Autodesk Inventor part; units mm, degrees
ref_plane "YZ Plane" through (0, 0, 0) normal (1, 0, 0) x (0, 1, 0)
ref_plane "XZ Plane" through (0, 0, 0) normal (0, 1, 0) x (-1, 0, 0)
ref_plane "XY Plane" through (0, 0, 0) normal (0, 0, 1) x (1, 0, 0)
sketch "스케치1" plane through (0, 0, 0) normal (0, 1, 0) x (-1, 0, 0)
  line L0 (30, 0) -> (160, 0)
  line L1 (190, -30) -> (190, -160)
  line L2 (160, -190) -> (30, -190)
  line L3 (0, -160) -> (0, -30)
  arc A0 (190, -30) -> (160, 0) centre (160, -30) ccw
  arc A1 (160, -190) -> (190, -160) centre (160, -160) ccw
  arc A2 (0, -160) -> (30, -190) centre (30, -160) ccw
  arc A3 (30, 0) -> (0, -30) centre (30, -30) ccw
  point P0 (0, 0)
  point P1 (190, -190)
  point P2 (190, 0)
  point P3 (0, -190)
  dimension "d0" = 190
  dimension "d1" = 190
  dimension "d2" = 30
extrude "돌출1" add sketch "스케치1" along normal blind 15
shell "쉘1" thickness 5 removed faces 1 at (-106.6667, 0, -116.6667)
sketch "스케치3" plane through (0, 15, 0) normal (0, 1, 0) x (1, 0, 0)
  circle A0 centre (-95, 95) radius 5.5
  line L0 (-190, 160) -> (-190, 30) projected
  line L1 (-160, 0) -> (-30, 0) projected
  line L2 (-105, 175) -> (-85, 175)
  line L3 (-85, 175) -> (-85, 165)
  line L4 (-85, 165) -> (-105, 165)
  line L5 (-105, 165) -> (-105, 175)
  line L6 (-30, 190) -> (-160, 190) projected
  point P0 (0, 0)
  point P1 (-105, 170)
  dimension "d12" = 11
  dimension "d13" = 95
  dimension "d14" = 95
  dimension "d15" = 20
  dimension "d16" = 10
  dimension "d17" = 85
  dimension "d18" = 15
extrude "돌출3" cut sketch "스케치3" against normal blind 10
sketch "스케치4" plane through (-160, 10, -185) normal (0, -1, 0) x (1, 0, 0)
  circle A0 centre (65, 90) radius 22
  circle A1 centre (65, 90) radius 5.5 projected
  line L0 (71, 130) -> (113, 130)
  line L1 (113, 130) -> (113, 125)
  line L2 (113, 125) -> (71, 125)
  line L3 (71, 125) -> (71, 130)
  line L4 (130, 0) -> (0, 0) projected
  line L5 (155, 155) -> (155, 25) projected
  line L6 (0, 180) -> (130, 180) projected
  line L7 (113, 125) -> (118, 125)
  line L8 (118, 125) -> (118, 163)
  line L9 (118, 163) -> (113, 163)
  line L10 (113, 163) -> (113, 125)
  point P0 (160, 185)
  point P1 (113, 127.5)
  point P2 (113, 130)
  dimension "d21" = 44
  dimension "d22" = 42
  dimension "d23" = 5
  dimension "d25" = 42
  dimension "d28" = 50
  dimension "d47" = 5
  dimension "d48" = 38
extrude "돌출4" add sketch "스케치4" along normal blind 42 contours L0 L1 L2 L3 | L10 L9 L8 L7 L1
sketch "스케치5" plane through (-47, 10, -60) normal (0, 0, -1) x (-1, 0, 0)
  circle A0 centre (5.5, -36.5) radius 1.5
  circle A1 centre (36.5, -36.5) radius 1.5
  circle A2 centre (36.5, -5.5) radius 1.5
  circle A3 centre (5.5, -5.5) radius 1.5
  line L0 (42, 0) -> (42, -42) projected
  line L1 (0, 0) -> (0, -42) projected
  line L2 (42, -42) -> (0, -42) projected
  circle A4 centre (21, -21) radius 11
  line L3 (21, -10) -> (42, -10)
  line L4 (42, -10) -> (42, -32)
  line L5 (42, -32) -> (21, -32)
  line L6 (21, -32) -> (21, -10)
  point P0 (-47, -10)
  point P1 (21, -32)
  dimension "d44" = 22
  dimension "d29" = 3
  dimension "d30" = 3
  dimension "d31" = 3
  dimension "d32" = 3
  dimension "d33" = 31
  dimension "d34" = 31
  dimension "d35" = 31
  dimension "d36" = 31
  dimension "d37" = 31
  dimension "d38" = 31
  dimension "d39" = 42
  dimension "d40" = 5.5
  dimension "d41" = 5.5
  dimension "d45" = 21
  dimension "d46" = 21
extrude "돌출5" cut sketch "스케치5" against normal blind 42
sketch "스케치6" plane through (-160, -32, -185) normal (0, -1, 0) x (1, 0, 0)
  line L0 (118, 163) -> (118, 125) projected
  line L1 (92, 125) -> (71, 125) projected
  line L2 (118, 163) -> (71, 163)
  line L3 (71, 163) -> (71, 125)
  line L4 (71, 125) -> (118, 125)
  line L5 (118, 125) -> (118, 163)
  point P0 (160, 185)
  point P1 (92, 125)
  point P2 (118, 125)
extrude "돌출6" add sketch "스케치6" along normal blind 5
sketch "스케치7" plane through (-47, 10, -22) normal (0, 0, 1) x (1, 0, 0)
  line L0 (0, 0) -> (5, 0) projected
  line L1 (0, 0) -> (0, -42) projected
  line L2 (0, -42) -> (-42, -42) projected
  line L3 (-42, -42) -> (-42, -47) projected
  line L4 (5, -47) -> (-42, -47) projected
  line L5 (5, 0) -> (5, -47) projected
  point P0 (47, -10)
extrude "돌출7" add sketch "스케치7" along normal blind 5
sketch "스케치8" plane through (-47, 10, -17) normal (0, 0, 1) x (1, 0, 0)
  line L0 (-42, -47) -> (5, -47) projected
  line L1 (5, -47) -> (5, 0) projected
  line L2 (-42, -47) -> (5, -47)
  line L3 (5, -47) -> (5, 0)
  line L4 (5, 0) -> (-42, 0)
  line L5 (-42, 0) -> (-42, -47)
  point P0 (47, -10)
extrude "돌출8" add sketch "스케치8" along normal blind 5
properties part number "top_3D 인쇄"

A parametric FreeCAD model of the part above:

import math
import FreeCAD as App
import Part
import Sketcher

V = App.Vector
Q = App.Units.Quantity


def faces_at(feature, points):
    """Names of the faces that lie closest to the given points."""
    faces = feature.Shape.Faces
    near = lambda p: min(range(len(faces)), key=lambda i: faces[i].distToShape(Part.Vertex(*p))[0])
    return sorted({f"Face{near(p) + 1}" for p in points})

doc = App.newDocument("Part")
body = doc.addObject("PartDesign::Body", "Body")

# Sketch on XZ plane
sketch1 = doc.addObject("Sketcher::SketchObject", "Sketch")
body.addObject(sketch1)
sketch1.AttachmentSupport = (doc.XZ_Plane, [""])
sketch1.MapMode = "FlatFace"
sketch1.addGeometry(Part.LineSegment(V(-160, 0, 0), V(-30, 0, 0)), False)
sketch1.addGeometry(Part.ArcOfCircle(Part.Circle(V(-30, -30, 0), V(0, 0, 1), 30), math.radians(0), math.radians(90)), False)
sketch1.addGeometry(Part.LineSegment(V(0, -30, 0), V(0, -160, 0)), False)
sketch1.addGeometry(Part.ArcOfCircle(Part.Circle(V(-30, -160, 0), V(0, 0, 1), 30), math.radians(-90), math.radians(0)), False)
sketch1.addGeometry(Part.LineSegment(V(-30, -190, 0), V(-160, -190, 0)), False)
sketch1.addGeometry(Part.ArcOfCircle(Part.Circle(V(-160, -160, 0), V(0, 0, 1), 30), math.radians(180), math.radians(270)), False)
sketch1.addGeometry(Part.LineSegment(V(-190, -160, 0), V(-190, -30, 0)), False)
sketch1.addGeometry(Part.ArcOfCircle(Part.Circle(V(-160, -30, 0), V(0, 0, 1), 30), math.radians(90), math.radians(180)), False)
sketch1.addConstraint(Sketcher.Constraint("Tangent", 0, 2, 1, 2))
sketch1.addConstraint(Sketcher.Constraint("Tangent", 1, 1, 2, 1))
sketch1.addConstraint(Sketcher.Constraint("Tangent", 2, 2, 3, 2))
sketch1.addConstraint(Sketcher.Constraint("Tangent", 3, 1, 4, 1))
sketch1.addConstraint(Sketcher.Constraint("Tangent", 4, 2, 5, 2))
sketch1.addConstraint(Sketcher.Constraint("Tangent", 5, 1, 6, 1))
sketch1.addConstraint(Sketcher.Constraint("Tangent", 6, 2, 7, 2))
sketch1.addConstraint(Sketcher.Constraint("Tangent", 7, 1, 0, 1))
sketch1.addConstraint(Sketcher.Constraint("Horizontal", 0))
sketch1.addConstraint(Sketcher.Constraint("Vertical", 2))
sketch1.addConstraint(Sketcher.Constraint("Horizontal", 4))
sketch1.addConstraint(Sketcher.Constraint("Vertical", 6))
sketch1.addConstraint(Sketcher.Constraint("Equal", 1, 3))
sketch1.addConstraint(Sketcher.Constraint("Equal", 3, 5))
sketch1.addConstraint(Sketcher.Constraint("Equal", 5, 7))
sketch1.addConstraint(Sketcher.Constraint("PointOnObject", 0, 2, -1))
sketch1.addConstraint(Sketcher.Constraint("PointOnObject", 1, 1, -2))
sketch1.addConstraint(Sketcher.Constraint("Equal", 4, 2))
sketch1.addConstraint(Sketcher.Constraint("Radius", 1, Q("30 mm")))
sketch1.addConstraint(Sketcher.Constraint("DistanceY", 3, 1, -1, 1, Q("190 mm")))
pad1 = doc.addObject("PartDesign::Pad", "Pad")
body.addObject(pad1)
pad1.Profile = sketch1
pad1.Length = 15
pad1.Reversed = True
doc.recompute()

thickness = doc.addObject("PartDesign::Thickness", "Thickness")
body.addObject(thickness)
thickness.Base = (pad1, faces_at(pad1, [(-106.667, 0, -116.667)]))
thickness.Value = 5
thickness.Reversed = True
thickness.Join = "Intersection"

# Sketch on XZ plane
sketch2 = doc.addObject("Sketcher::SketchObject", "Sketch001")
body.addObject(sketch2)
sketch2.AttachmentSupport = (doc.XZ_Plane, [""])
sketch2.MapMode = "FlatFace"
sketch2.AttachmentOffset = App.Placement(V(0, 0, -15), App.Rotation())
sketch2.addGeometry(Part.Circle(V(-95, -95, 0), V(0, 0, 1), 5.5), False)
sketch2.addGeometry(Part.LineSegment(V(-85, -175, 0), V(-105, -175, 0)), False)
sketch2.addGeometry(Part.LineSegment(V(-105, -175, 0), V(-105, -165, 0)), False)
sketch2.addGeometry(Part.LineSegment(V(-105, -165, 0), V(-85, -165, 0)), False)
sketch2.addGeometry(Part.LineSegment(V(-85, -165, 0), V(-85, -175, 0)), False)
sketch2.addConstraint(Sketcher.Constraint("Coincident", 1, 2, 2, 1))
sketch2.addConstraint(Sketcher.Constraint("Coincident", 2, 2, 3, 1))
sketch2.addConstraint(Sketcher.Constraint("Coincident", 3, 2, 4, 1))
sketch2.addConstraint(Sketcher.Constraint("Coincident", 4, 2, 1, 1))
sketch2.addConstraint(Sketcher.Constraint("Horizontal", 1))
sketch2.addConstraint(Sketcher.Constraint("Vertical", 2))
sketch2.addConstraint(Sketcher.Constraint("Horizontal", 3))
sketch2.addConstraint(Sketcher.Constraint("Vertical", 4))
sketch2.addConstraint(Sketcher.Constraint("Diameter", 0, Q("11 mm")))
sketch2.addConstraint(Sketcher.Constraint("DistanceX", 1, 2, 1, 1, Q("20 mm")))
sketch2.addConstraint(Sketcher.Constraint("DistanceY", 2, 1, 2, 2, Q("10 mm")))
sketch2.addConstraint(Sketcher.Constraint("DistanceX", 0, 3, -1, 1, Q("95 mm")))
sketch2.addConstraint(Sketcher.Constraint("DistanceY", 0, 3, -1, 1, Q("95 mm")))
sketch2.addConstraint(Sketcher.Constraint("DistanceX", 3, 2, -1, 1, Q("85 mm")))
sketch2.addConstraint(Sketcher.Constraint("DistanceY", 1, 2, -1, 1, Q("175 mm")))
pocket1 = doc.addObject("PartDesign::Pocket", "Pocket")
body.addObject(pocket1)
pocket1.Profile = sketch2
pocket1.Length = 10
pocket1.Reversed = True

# Sketch on XZ plane
sketch3 = doc.addObject("Sketcher::SketchObject", "Sketch002")
body.addObject(sketch3)
sketch3.AttachmentSupport = (doc.XZ_Plane, [""])
sketch3.MapMode = "FlatFace"
sketch3.AttachmentOffset = App.Placement(V(0, 0, -10), App.Rotation())
sketch3.addGeometry(Part.LineSegment(V(-47, -55, 0), V(-89, -55, 0)), False)
sketch3.addGeometry(Part.LineSegment(V(-89, -55, 0), V(-89, -60, 0)), False)
sketch3.addGeometry(Part.LineSegment(V(-89, -60, 0), V(-42, -60, 0)), False)
sketch3.addGeometry(Part.LineSegment(V(-42, -60, 0), V(-42, -22, 0)), False)
sketch3.addGeometry(Part.LineSegment(V(-42, -22, 0), V(-47, -22, 0)), False)
sketch3.addGeometry(Part.LineSegment(V(-47, -22, 0), V(-47, -55, 0)), False)
sketch3.addConstraint(Sketcher.Constraint("Coincident", 0, 2, 1, 1))
sketch3.addConstraint(Sketcher.Constraint("Coincident", 1, 2, 2, 1))
sketch3.addConstraint(Sketcher.Constraint("Coincident", 2, 2, 3, 1))
sketch3.addConstraint(Sketcher.Constraint("Coincident", 3, 2, 4, 1))
sketch3.addConstraint(Sketcher.Constraint("Coincident", 4, 2, 5, 1))
sketch3.addConstraint(Sketcher.Constraint("Coincident", 5, 2, 0, 1))
sketch3.addConstraint(Sketcher.Constraint("Horizontal", 0))
sketch3.addConstraint(Sketcher.Constraint("Vertical", 1))
sketch3.addConstraint(Sketcher.Constraint("Horizontal", 2))
sketch3.addConstraint(Sketcher.Constraint("Vertical", 3))
sketch3.addConstraint(Sketcher.Constraint("Horizontal", 4))
sketch3.addConstraint(Sketcher.Constraint("Vertical", 5))
sketch3.addConstraint(Sketcher.Constraint("Equal", 4, 1))
sketch3.addConstraint(Sketcher.Constraint("DistanceX", 0, 2, 0, 1, Q("42 mm")))
sketch3.addConstraint(Sketcher.Constraint("DistanceX", 4, 2, 4, 1, Q("5 mm")))
sketch3.addConstraint(Sketcher.Constraint("DistanceY", 3, 1, 3, 2, Q("38 mm")))
sketch3.addConstraint(Sketcher.Constraint("DistanceX", 2, 2, -1, 1, Q("42 mm")))
sketch3.addConstraint(Sketcher.Constraint("DistanceY", 0, 2, -1, 1, Q("55 mm")))
pad2 = doc.addObject("PartDesign::Pad", "Pad001")
body.addObject(pad2)
pad2.Profile = sketch3
pad2.Length = 42

# Sketch on XY plane
sketch4 = doc.addObject("Sketcher::SketchObject", "Sketch003")
body.addObject(sketch4)
sketch4.AttachmentSupport = (doc.XY_Plane, [""])
sketch4.MapMode = "FlatFace"
sketch4.AttachmentOffset = App.Placement(V(0, 0, -60), App.Rotation())
sketch4.addGeometry(Part.Circle(V(-52.5, -26.5, 0), V(0, 0, 1), 1.5), False)
sketch4.addGeometry(Part.Circle(V(-83.5, -26.5, 0), V(0, 0, 1), 1.5), False)
sketch4.addGeometry(Part.Circle(V(-83.5, 4.5, 0), V(0, 0, 1), 1.5), False)
sketch4.addGeometry(Part.Circle(V(-52.5, 4.5, 0), V(0, 0, 1), 1.5), False)
sketch4.addGeometry(Part.LineSegment(V(-89, -22, 0), V(-89, 0, 0)), False)
sketch4.addGeometry(Part.LineSegment(V(-89, 0, 0), V(-68, 0, 0)), False)
sketch4.addGeometry(Part.ArcOfCircle(Part.Circle(V(-68, -11, 0), V(0, 0, 1), 11), math.radians(-90), math.radians(90)), False)
sketch4.addGeometry(Part.LineSegment(V(-68, -22, 0), V(-89, -22, 0)), False)
sketch4.addConstraint(Sketcher.Constraint("Coincident", 4, 2, 5, 1))
sketch4.addConstraint(Sketcher.Constraint("Tangent", 5, 2, 6, 2))
sketch4.addConstraint(Sketcher.Constraint("Tangent", 6, 1, 7, 1))
sketch4.addConstraint(Sketcher.Constraint("Coincident", 7, 2, 4, 1))
sketch4.addConstraint(Sketcher.Constraint("Vertical", 4))
sketch4.addConstraint(Sketcher.Constraint("Horizontal", 5))
sketch4.addConstraint(Sketcher.Constraint("Horizontal", 7))
sketch4.addConstraint(Sketcher.Constraint("Equal", 0, 1))
sketch4.addConstraint(Sketcher.Constraint("Equal", 1, 2))
sketch4.addConstraint(Sketcher.Constraint("Equal", 2, 3))
sketch4.addConstraint(Sketcher.Constraint("PointOnObject", 4, 2, -1))
sketch4.addConstraint(Sketcher.Constraint("Horizontal", 0, 3, 1, 3))
sketch4.addConstraint(Sketcher.Constraint("Horizontal", 2, 3, 3, 3))
sketch4.addConstraint(Sketcher.Constraint("Vertical", 1, 3, 2, 3))
sketch4.addConstraint(Sketcher.Constraint("Vertical", 0, 3, 3, 3))
sketch4.addConstraint(Sketcher.Constraint("Diameter", 0, Q("3 mm")))
sketch4.addConstraint(Sketcher.Constraint("Radius", 6, Q("11 mm")))
sketch4.addConstraint(Sketcher.Constraint("DistanceX", 5, 1, 5, 2, Q("21 mm")))
sketch4.addConstraint(Sketcher.Constraint("DistanceX", 1, 3, 0, 3, Q("31 mm")))
sketch4.addConstraint(Sketcher.Constraint("DistanceY", 1, 3, 2, 3, Q("31 mm")))
sketch4.addConstraint(Sketcher.Constraint("DistanceX", 4, 2, 2, 3, Q("5.5 mm")))
sketch4.addConstraint(Sketcher.Constraint("DistanceX", 6, 3, -1, 1, Q("68 mm")))
sketch4.addConstraint(Sketcher.Constraint("DistanceY", 0, 3, -1, 1, Q("26.5 mm")))
pocket2 = doc.addObject("PartDesign::Pocket", "Pocket001")
body.addObject(pocket2)
pocket2.Profile = sketch4
pocket2.Length = 42
pocket2.Reversed = True

# Sketch on XZ plane
sketch5 = doc.addObject("Sketcher::SketchObject", "Sketch004")
body.addObject(sketch5)
sketch5.AttachmentSupport = (doc.XZ_Plane, [""])
sketch5.MapMode = "FlatFace"
sketch5.AttachmentOffset = App.Placement(V(0, 0, 32), App.Rotation())
sketch5.addGeometry(Part.LineSegment(V(-42, -60, 0), V(-42, -22, 0)), False)
sketch5.addGeometry(Part.LineSegment(V(-42, -22, 0), V(-89, -22, 0)), False)
sketch5.addGeometry(Part.LineSegment(V(-89, -22, 0), V(-89, -60, 0)), False)
sketch5.addGeometry(Part.LineSegment(V(-89, -60, 0), V(-42, -60, 0)), False)
sketch5.addConstraint(Sketcher.Constraint("Coincident", 0, 2, 1, 1))
sketch5.addConstraint(Sketcher.Constraint("Coincident", 1, 2, 2, 1))
sketch5.addConstraint(Sketcher.Constraint("Coincident", 2, 2, 3, 1))
sketch5.addConstraint(Sketcher.Constraint("Coincident", 3, 2, 0, 1))
sketch5.addConstraint(Sketcher.Constraint("Vertical", 0))
sketch5.addConstraint(Sketcher.Constraint("Horizontal", 1))
sketch5.addConstraint(Sketcher.Constraint("Vertical", 2))
sketch5.addConstraint(Sketcher.Constraint("Horizontal", 3))
sketch5.addConstraint(Sketcher.Constraint("DistanceX", 1, 2, 1, 1, Q("47 mm")))
sketch5.addConstraint(Sketcher.Constraint("DistanceY", 0, 1, 0, 2, Q("38 mm")))
sketch5.addConstraint(Sketcher.Constraint("DistanceX", 0, 2, -1, 1, Q("42 mm")))
sketch5.addConstraint(Sketcher.Constraint("DistanceY", 0, 2, -1, 1, Q("22 mm")))
pad3 = doc.addObject("PartDesign::Pad", "Pad002")
body.addObject(pad3)
pad3.Profile = sketch5
pad3.Length = 5

# Sketch on XY plane
sketch6 = doc.addObject("Sketcher::SketchObject", "Sketch005")
body.addObject(sketch6)
sketch6.AttachmentSupport = (doc.XY_Plane, [""])
sketch6.MapMode = "FlatFace"
sketch6.AttachmentOffset = App.Placement(V(0, 0, -22), App.Rotation())
sketch6.addGeometry(Part.LineSegment(V(-42, 10, 0), V(-47, 10, 0)), False)
sketch6.addGeometry(Part.LineSegment(V(-47, 10, 0), V(-47, -32, 0)), False)
sketch6.addGeometry(Part.LineSegment(V(-47, -32, 0), V(-89, -32, 0)), False)
sketch6.addGeometry(Part.LineSegment(V(-89, -32, 0), V(-89, -37, 0)), False)
sketch6.addGeometry(Part.LineSegment(V(-89, -37, 0), V(-42, -37, 0)), False)
sketch6.addGeometry(Part.LineSegment(V(-42, -37, 0), V(-42, 10, 0)), False)
sketch6.addConstraint(Sketcher.Constraint("Coincident", 0, 2, 1, 1))
sketch6.addConstraint(Sketcher.Constraint("Coincident", 1, 2, 2, 1))
sketch6.addConstraint(Sketcher.Constraint("Coincident", 2, 2, 3, 1))
sketch6.addConstraint(Sketcher.Constraint("Coincident", 3, 2, 4, 1))
sketch6.addConstraint(Sketcher.Constraint("Coincident", 4, 2, 5, 1))
sketch6.addConstraint(Sketcher.Constraint("Coincident", 5, 2, 0, 1))
sketch6.addConstraint(Sketcher.Constraint("Horizontal", 0))
sketch6.addConstraint(Sketcher.Constraint("Vertical", 1))
sketch6.addConstraint(Sketcher.Constraint("Horizontal", 2))
sketch6.addConstraint(Sketcher.Constraint("Vertical", 3))
sketch6.addConstraint(Sketcher.Constraint("Horizontal", 4))
sketch6.addConstraint(Sketcher.Constraint("Vertical", 5))
sketch6.addConstraint(Sketcher.Constraint("Equal", 2, 1))
sketch6.addConstraint(Sketcher.Constraint("Equal", 0, 3))
sketch6.addConstraint(Sketcher.Constraint("DistanceX", 0, 2, 0, 1, Q("5 mm")))
sketch6.addConstraint(Sketcher.Constraint("DistanceX", 2, 2, 2, 1, Q("42 mm")))
sketch6.addConstraint(Sketcher.Constraint("DistanceX", 0, 2, -1, 1, Q("47 mm")))
sketch6.addConstraint(Sketcher.Constraint("DistanceY", -1, 1, 0, 2, Q("10 mm")))
pad4 = doc.addObject("PartDesign::Pad", "Pad003")
body.addObject(pad4)
pad4.Profile = sketch6
pad4.Length = 5

# Sketch on XY plane
sketch7 = doc.addObject("Sketcher::SketchObject", "Sketch006")
body.addObject(sketch7)
sketch7.AttachmentSupport = (doc.XY_Plane, [""])
sketch7.MapMode = "FlatFace"
sketch7.AttachmentOffset = App.Placement(V(0, 0, -17), App.Rotation())
sketch7.addGeometry(Part.LineSegment(V(-89, 10, 0), V(-89, -37, 0)), False)
sketch7.addGeometry(Part.LineSegment(V(-89, -37, 0), V(-42, -37, 0)), False)
sketch7.addGeometry(Part.LineSegment(V(-42, -37, 0), V(-42, 10, 0)), False)
sketch7.addGeometry(Part.LineSegment(V(-42, 10, 0), V(-89, 10, 0)), False)
sketch7.addConstraint(Sketcher.Constraint("Coincident", 0, 2, 1, 1))
sketch7.addConstraint(Sketcher.Constraint("Coincident", 1, 2, 2, 1))
sketch7.addConstraint(Sketcher.Constraint("Coincident", 2, 2, 3, 1))
sketch7.addConstraint(Sketcher.Constraint("Coincident", 3, 2, 0, 1))
sketch7.addConstraint(Sketcher.Constraint("Vertical", 0))
sketch7.addConstraint(Sketcher.Constraint("Horizontal", 1))
sketch7.addConstraint(Sketcher.Constraint("Vertical", 2))
sketch7.addConstraint(Sketcher.Constraint("Horizontal", 3))
sketch7.addConstraint(Sketcher.Constraint("Equal", 3, 0))
sketch7.addConstraint(Sketcher.Constraint("DistanceX", 1, 1, 1, 2, Q("47 mm")))
sketch7.addConstraint(Sketcher.Constraint("DistanceX", 0, 2, -1, 1, Q("89 mm")))
sketch7.addConstraint(Sketcher.Constraint("DistanceY", 0, 2, -1, 1, Q("37 mm")))
pad5 = doc.addObject("PartDesign::Pad", "Pad004")
body.addObject(pad5)
pad5.Profile = sketch7
pad5.Length = 5

doc.recompute()
